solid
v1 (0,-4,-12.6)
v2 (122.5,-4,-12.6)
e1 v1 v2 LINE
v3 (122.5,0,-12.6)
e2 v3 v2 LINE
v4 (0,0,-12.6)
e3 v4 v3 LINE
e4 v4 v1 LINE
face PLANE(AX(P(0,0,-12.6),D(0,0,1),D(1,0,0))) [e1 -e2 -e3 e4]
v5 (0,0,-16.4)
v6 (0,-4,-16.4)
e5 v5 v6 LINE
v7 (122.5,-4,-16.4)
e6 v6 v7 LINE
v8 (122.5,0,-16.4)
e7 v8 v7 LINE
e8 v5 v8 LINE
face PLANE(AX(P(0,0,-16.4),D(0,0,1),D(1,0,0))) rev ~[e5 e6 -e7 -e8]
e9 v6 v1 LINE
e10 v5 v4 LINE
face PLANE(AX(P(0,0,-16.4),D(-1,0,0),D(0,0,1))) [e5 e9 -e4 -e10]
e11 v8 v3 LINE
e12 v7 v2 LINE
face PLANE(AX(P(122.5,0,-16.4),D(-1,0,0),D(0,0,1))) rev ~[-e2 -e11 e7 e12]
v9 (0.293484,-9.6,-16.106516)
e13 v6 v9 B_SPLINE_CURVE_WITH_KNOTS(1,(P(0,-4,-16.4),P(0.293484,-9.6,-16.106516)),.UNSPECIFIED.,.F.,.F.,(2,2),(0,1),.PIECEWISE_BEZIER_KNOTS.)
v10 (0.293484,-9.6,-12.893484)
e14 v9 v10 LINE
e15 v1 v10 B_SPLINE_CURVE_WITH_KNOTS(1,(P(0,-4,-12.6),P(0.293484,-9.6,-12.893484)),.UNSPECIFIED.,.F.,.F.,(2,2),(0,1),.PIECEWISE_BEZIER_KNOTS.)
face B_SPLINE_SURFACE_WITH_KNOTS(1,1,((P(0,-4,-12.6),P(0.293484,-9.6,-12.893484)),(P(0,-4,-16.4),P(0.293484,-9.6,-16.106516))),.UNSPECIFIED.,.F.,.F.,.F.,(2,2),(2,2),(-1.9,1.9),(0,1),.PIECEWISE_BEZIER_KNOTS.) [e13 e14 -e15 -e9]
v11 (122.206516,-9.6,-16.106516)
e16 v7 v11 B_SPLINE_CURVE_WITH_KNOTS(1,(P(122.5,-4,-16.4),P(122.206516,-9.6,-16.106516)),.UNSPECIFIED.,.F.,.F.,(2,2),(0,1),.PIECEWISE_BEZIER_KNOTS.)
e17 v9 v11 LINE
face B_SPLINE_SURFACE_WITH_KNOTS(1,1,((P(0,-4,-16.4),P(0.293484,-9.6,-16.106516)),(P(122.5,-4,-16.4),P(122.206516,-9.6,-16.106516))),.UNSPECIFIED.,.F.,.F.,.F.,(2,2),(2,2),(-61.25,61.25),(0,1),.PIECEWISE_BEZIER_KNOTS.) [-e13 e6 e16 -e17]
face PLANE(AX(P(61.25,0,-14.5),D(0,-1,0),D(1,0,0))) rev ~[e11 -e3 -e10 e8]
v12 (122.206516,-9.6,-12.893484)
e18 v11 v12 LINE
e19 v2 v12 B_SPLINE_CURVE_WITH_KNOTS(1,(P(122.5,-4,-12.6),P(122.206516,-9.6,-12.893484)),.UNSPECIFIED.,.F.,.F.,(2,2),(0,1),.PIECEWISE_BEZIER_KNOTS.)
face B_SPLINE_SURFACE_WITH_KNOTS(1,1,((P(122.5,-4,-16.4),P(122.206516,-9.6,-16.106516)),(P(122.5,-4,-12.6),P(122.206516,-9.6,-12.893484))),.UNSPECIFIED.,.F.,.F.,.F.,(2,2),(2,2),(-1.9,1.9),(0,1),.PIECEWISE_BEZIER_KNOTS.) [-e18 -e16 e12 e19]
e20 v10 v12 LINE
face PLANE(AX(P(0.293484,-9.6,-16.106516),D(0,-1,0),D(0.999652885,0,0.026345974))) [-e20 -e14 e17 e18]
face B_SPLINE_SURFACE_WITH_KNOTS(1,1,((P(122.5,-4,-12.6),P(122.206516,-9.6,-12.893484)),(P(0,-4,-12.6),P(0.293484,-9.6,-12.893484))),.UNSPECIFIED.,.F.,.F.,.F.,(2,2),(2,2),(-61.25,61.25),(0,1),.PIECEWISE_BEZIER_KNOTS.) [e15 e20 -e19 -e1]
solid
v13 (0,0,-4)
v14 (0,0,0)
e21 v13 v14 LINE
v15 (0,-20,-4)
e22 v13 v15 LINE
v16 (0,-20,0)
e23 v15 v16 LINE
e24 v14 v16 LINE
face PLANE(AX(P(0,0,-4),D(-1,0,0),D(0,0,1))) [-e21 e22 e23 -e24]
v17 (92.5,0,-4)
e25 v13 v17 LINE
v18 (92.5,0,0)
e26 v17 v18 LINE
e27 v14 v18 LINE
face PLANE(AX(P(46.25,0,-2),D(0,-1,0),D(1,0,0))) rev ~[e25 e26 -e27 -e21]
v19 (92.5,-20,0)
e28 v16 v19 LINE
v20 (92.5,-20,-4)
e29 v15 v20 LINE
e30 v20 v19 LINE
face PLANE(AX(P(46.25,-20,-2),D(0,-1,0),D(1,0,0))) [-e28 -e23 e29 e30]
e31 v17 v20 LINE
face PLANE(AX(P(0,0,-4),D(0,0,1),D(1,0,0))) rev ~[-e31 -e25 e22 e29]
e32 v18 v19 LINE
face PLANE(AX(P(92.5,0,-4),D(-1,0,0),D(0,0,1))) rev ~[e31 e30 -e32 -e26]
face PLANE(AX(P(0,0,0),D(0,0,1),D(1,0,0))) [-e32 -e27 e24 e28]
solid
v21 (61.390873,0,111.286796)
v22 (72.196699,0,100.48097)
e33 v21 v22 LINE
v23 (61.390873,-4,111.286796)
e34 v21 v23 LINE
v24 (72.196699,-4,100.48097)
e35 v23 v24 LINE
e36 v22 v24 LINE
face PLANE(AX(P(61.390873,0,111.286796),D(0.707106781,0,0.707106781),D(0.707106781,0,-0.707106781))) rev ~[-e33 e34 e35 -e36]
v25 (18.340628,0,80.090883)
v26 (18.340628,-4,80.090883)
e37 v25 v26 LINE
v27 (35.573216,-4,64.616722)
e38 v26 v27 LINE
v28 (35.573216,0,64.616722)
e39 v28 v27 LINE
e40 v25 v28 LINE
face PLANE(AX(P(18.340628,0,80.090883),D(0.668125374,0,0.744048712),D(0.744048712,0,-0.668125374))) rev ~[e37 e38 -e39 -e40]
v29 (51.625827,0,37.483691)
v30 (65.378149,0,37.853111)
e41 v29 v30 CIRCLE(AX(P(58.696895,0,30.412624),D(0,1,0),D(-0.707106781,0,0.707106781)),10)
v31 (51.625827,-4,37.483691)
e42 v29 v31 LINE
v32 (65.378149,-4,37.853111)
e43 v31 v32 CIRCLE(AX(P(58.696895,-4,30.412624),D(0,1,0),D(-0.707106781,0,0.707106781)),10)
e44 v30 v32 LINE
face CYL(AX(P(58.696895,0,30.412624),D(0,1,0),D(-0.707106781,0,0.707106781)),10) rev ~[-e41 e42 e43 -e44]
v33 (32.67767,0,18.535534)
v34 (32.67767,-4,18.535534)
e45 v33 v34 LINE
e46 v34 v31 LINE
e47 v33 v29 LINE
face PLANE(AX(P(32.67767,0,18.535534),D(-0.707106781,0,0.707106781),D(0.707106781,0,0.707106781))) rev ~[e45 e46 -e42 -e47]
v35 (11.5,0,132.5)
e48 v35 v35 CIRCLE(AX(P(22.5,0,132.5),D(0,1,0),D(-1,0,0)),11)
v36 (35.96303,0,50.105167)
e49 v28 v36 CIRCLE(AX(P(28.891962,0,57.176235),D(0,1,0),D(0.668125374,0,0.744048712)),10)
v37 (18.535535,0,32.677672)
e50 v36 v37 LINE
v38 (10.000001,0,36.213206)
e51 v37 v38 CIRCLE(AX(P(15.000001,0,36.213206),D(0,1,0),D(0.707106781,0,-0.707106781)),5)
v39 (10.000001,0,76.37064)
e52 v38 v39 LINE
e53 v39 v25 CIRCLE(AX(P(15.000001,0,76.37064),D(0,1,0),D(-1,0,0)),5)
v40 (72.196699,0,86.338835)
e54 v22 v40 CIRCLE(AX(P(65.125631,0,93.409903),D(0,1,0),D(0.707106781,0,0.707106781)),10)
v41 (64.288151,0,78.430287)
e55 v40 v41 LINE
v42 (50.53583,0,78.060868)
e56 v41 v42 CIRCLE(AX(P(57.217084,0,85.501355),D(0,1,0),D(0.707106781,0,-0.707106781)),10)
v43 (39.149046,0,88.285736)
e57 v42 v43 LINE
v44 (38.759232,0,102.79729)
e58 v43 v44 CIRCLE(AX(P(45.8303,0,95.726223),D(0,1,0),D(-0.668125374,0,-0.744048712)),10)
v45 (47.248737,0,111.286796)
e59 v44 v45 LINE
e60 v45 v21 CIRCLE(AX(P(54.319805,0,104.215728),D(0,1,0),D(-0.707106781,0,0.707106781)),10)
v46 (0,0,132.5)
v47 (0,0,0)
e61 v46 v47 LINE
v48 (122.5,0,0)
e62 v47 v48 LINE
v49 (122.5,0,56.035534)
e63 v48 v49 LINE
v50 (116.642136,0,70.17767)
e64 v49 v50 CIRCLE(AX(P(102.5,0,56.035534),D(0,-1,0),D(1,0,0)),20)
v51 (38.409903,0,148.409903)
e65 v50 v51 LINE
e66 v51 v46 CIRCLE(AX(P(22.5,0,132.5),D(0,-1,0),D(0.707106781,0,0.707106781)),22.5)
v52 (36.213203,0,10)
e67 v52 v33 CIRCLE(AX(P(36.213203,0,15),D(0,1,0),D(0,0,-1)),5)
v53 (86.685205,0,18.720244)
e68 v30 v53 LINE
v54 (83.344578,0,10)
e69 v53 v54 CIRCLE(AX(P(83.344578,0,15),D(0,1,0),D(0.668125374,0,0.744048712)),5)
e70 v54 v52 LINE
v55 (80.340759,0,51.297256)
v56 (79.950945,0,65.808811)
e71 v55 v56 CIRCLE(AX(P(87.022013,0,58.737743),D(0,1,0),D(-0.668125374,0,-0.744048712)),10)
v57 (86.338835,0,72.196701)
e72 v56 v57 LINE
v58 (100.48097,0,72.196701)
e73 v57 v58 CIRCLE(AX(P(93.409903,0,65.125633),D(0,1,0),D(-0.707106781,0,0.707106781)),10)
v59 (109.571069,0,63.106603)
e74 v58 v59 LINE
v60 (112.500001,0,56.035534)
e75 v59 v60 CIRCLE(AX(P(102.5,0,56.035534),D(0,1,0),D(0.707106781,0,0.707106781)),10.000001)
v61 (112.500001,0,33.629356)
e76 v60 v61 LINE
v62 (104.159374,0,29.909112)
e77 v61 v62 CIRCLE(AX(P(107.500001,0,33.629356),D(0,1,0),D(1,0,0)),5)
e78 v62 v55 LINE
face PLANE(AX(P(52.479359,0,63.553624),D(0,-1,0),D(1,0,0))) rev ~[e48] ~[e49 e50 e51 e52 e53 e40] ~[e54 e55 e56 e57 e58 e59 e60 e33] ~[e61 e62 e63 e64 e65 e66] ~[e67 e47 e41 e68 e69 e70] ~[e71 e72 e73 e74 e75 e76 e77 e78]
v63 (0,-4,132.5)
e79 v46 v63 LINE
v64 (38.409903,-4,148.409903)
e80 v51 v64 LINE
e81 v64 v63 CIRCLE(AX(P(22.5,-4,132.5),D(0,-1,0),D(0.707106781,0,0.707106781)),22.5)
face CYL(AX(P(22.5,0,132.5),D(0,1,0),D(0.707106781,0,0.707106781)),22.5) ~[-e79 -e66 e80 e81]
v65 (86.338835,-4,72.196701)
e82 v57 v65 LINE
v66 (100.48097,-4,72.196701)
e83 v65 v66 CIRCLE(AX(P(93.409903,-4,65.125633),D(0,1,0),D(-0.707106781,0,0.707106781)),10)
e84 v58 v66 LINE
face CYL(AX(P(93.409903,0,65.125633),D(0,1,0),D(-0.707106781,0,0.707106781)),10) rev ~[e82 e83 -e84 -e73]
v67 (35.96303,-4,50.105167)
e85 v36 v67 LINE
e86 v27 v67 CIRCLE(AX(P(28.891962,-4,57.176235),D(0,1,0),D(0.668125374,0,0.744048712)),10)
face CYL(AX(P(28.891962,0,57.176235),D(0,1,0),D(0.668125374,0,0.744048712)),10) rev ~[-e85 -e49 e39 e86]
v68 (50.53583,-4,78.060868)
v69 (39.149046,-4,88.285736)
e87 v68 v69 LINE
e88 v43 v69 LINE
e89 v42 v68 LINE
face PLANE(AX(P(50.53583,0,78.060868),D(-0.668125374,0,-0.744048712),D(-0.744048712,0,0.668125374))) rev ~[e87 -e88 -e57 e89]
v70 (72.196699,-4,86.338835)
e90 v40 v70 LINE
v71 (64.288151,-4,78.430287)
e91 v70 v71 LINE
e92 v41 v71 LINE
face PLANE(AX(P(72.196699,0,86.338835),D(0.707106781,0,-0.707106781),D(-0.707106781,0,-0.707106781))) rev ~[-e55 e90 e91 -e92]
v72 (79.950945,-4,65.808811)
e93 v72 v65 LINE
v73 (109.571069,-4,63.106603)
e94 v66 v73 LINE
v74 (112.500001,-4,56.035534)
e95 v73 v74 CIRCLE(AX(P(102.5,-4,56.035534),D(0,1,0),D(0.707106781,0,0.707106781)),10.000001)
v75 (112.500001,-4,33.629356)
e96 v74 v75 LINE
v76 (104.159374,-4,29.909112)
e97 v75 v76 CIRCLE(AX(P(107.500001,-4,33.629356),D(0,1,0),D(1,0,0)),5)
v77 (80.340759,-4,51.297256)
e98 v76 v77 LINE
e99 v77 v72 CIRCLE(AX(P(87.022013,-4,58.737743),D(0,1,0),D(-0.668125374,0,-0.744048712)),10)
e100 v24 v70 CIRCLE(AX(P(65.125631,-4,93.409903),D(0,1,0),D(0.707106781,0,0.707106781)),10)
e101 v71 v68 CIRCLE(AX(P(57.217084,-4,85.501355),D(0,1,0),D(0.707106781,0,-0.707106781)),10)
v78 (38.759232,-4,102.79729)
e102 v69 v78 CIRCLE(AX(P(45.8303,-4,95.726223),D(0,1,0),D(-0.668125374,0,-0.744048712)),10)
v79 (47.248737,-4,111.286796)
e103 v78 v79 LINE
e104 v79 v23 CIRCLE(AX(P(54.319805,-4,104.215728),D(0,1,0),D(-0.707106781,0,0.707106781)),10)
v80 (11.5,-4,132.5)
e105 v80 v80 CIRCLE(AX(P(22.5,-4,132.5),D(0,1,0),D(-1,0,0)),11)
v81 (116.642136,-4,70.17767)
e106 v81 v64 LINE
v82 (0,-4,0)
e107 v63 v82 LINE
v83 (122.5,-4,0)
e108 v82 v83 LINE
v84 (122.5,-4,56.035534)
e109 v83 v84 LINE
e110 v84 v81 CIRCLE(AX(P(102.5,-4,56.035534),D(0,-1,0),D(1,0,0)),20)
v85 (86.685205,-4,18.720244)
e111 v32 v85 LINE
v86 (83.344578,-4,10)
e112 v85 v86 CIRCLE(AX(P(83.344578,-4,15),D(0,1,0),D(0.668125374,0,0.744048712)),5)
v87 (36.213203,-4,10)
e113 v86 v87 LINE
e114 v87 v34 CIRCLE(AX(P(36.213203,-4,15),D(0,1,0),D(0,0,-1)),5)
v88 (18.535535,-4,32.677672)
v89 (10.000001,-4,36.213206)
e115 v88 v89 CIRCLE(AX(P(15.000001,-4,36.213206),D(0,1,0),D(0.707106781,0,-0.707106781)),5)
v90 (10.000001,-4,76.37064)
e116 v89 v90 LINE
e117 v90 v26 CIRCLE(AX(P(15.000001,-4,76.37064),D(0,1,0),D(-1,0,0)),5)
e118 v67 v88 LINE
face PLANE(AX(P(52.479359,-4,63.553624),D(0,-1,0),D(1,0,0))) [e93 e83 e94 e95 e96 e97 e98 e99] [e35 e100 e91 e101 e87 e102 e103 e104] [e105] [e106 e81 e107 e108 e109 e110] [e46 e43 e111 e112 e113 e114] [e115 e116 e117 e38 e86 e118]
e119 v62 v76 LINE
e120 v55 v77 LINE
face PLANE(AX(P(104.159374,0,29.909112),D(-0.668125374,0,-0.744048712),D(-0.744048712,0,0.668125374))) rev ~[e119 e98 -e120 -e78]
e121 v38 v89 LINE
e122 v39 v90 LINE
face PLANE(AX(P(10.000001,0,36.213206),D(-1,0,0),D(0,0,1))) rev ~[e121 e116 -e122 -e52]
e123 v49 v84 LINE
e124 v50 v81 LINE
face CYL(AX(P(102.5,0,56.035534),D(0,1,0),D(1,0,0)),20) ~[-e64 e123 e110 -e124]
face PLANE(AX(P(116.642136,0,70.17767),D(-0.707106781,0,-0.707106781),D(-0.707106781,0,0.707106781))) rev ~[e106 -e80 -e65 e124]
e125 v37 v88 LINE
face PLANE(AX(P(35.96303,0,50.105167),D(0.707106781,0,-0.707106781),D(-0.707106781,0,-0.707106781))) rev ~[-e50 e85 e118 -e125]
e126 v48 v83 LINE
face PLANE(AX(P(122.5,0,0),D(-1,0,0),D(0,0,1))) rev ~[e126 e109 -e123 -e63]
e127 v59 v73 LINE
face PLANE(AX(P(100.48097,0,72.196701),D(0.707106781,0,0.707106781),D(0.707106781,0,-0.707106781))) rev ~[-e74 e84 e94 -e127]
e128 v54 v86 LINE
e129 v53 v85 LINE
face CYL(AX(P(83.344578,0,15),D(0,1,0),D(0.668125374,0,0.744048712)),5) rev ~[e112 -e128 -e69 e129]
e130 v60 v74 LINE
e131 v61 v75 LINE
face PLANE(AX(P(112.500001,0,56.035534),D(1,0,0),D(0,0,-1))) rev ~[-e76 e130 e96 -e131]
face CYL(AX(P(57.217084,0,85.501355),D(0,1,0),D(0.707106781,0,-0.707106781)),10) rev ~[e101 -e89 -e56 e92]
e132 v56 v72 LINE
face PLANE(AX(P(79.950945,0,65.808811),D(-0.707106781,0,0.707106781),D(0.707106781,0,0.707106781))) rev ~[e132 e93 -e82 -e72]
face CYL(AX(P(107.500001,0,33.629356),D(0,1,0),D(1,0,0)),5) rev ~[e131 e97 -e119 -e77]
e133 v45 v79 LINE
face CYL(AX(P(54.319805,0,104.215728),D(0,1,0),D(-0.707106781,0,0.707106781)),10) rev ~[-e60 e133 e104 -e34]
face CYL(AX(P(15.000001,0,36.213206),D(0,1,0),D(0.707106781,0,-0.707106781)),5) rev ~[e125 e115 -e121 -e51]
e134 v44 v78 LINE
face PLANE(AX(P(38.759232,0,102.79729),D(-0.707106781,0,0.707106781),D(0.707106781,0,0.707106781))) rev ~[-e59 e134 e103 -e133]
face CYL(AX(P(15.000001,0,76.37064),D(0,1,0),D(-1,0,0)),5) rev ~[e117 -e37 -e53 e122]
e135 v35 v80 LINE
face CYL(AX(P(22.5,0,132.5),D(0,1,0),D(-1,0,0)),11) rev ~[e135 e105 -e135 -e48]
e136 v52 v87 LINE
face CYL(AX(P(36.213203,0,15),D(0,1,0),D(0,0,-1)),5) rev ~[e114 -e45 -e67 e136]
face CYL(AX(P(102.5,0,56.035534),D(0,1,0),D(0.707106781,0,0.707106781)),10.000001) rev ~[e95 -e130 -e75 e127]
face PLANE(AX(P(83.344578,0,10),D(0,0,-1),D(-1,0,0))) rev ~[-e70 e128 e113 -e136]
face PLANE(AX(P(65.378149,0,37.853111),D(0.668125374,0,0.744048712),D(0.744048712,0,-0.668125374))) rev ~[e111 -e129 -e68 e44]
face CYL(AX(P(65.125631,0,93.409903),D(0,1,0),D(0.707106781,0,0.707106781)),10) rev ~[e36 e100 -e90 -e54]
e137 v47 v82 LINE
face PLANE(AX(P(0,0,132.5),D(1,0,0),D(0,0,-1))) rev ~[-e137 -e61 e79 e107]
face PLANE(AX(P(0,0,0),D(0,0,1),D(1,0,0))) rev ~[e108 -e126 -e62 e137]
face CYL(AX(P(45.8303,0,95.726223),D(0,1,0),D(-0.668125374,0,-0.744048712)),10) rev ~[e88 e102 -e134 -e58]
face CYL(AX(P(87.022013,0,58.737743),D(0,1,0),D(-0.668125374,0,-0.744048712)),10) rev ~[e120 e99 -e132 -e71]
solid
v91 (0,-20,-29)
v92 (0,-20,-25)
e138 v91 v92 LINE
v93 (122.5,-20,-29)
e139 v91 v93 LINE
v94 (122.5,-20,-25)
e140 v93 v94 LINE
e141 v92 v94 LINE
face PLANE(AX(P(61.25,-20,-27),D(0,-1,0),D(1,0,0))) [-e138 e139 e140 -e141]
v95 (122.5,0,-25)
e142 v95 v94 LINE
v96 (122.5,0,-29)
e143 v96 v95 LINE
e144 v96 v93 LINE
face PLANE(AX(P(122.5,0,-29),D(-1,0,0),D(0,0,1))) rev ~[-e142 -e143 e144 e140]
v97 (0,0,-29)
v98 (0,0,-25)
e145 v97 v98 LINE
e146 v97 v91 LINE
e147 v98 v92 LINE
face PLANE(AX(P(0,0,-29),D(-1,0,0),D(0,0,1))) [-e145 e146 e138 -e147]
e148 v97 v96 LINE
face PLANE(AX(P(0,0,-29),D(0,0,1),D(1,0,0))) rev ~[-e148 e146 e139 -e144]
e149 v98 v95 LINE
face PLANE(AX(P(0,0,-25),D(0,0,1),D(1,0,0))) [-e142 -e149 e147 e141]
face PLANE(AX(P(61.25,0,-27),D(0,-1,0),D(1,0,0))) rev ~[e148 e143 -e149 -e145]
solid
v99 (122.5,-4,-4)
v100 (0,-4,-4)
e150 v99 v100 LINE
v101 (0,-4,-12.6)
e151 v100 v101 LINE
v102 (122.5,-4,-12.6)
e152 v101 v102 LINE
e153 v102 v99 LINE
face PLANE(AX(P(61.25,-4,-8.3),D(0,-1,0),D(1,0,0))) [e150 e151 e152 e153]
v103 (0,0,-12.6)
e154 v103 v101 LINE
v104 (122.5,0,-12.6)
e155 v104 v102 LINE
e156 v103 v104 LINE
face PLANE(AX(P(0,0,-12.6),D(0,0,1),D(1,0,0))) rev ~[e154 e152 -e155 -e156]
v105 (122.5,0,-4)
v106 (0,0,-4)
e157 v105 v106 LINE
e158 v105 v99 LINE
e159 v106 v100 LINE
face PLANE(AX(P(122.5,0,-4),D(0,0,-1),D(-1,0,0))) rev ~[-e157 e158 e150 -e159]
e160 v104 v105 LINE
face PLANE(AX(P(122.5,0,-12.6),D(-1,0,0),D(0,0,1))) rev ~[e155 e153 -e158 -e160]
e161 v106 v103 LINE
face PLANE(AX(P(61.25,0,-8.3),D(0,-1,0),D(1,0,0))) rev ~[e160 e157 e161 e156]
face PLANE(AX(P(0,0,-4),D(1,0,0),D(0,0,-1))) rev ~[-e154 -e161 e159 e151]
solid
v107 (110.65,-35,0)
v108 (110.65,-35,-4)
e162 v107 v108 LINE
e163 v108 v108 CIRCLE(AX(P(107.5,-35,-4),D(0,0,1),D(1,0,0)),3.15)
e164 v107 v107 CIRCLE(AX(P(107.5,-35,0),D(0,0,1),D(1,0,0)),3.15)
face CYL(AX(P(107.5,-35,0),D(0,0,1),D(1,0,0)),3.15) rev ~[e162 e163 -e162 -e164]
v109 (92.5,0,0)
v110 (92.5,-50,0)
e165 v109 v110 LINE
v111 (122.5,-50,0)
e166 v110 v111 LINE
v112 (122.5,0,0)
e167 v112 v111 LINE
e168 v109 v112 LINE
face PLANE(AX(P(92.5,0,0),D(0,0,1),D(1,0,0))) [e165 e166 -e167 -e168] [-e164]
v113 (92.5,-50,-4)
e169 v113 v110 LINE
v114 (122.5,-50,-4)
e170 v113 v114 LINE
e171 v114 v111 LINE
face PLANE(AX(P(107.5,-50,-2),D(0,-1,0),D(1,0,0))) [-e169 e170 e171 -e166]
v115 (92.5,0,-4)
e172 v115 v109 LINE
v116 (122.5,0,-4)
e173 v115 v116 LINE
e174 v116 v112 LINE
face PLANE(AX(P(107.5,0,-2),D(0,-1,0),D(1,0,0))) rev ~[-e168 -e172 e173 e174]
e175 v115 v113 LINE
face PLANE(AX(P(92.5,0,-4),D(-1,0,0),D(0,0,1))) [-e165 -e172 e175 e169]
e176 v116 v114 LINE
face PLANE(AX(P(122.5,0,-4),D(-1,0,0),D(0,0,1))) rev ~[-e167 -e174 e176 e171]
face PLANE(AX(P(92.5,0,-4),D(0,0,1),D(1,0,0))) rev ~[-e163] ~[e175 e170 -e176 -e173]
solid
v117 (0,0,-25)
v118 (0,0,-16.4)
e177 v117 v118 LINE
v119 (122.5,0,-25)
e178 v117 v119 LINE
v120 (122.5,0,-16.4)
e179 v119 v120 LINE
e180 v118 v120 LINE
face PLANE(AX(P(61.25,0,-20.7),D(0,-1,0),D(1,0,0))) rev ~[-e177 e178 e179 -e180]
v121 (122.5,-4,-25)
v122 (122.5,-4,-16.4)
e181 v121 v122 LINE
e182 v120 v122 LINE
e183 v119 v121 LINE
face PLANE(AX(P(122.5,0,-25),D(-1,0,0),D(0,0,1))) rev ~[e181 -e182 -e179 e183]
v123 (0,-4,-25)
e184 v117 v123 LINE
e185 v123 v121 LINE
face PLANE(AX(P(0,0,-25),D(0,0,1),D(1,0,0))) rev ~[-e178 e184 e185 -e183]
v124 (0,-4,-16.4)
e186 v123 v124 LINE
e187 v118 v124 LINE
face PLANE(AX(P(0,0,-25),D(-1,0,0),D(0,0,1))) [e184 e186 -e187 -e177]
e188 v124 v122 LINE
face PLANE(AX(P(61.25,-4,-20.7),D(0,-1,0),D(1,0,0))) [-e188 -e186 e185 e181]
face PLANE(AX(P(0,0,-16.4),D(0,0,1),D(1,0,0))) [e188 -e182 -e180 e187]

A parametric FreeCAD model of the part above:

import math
import FreeCAD as App
import Part
import Sketcher

doc = App.newDocument("Part")
body = doc.addObject("PartDesign::Body", "Body")

sketch1 = doc.addObject("Sketcher::SketchObject", "Sketch")
body.addObject(sketch1)
sketch1.AttachmentSupport = (doc.XZ_Plane, [""])
sketch1.MapMode = "FlatFace"
sketch1.addGeometry(Part.LineSegment(App.Vector(0, 0, 0), App.Vector(122, 0, 0)), False)
sketch1.addGeometry(Part.LineSegment(App.Vector(122, 0, 0), App.Vector(122, 56, 0)), False)
sketch1.addGeometry(Part.ArcOfCircle(Part.Circle(App.Vector(102, 56, 0), App.Vector(0, 0, 1), 20), math.radians(0), math.radians(45)), False)
sketch1.addGeometry(Part.LineSegment(App.Vector(117, 70, 0), App.Vector(38, 148, 0)), False)
sketch1.addGeometry(Part.ArcOfCircle(Part.Circle(App.Vector(22, 132, 0), App.Vector(0, 0, 1), 22), math.radians(45), math.radians(180)), False)
sketch1.addGeometry(Part.LineSegment(App.Vector(0, 132, 0), App.Vector(0, 0, 0)), False)
sketch1.addGeometry(Part.LineSegment(App.Vector(33, 19, 0), App.Vector(52, 37, 0)), False)
sketch1.addGeometry(Part.ArcOfCircle(Part.Circle(App.Vector(59, 30, 0), App.Vector(0, 0, 1), 10), math.radians(48), math.radians(135)), False)
sketch1.addGeometry(Part.LineSegment(App.Vector(65, 38, 0), App.Vector(87, 19, 0)), False)
sketch1.addGeometry(Part.ArcOfCircle(Part.Circle(App.Vector(83, 15, 0), App.Vector(0, 0, 1), 5), math.radians(-90), math.radians(48)), False)
sketch1.addGeometry(Part.LineSegment(App.Vector(83, 10, 0), App.Vector(36, 10, 0)), False)
sketch1.addGeometry(Part.ArcOfCircle(Part.Circle(App.Vector(36, 15, 0), App.Vector(0, 0, 1), 5), math.radians(135), math.radians(270)), False)
sketch1.addGeometry(Part.LineSegment(App.Vector(18, 80, 0), App.Vector(36, 65, 0)), False)
sketch1.addGeometry(Part.ArcOfCircle(Part.Circle(App.Vector(29, 57, 0), App.Vector(0, 0, 1), 10), math.radians(-45), math.radians(48)), False)
sketch1.addGeometry(Part.LineSegment(App.Vector(36, 50, 0), App.Vector(19, 33, 0)), False)
sketch1.addGeometry(Part.ArcOfCircle(Part.Circle(App.Vector(15, 36, 0), App.Vector(0, 0, 1), 5), math.radians(180), math.radians(315)), False)
sketch1.addGeometry(Part.LineSegment(App.Vector(10, 36, 0), App.Vector(10, 76, 0)), False)
sketch1.addGeometry(Part.ArcOfCircle(Part.Circle(App.Vector(15, 76, 0), App.Vector(0, 0, 1), 5), math.radians(48), math.radians(180)), False)
sketch1.addGeometry(Part.ArcOfCircle(Part.Circle(App.Vector(102, 56, 0), App.Vector(0, 0, 1), 10), math.radians(0), math.radians(45)), False)
sketch1.addGeometry(Part.LineSegment(App.Vector(113, 56, 0), App.Vector(113, 34, 0)), False)
sketch1.addGeometry(Part.ArcOfCircle(Part.Circle(App.Vector(108, 34, 0), App.Vector(0, 0, 1), 5), math.radians(-132), math.radians(0)), False)
sketch1.addGeometry(Part.LineSegment(App.Vector(104, 30, 0), App.Vector(80, 51, 0)), False)
sketch1.addGeometry(Part.ArcOfCircle(Part.Circle(App.Vector(87, 59, 0), App.Vector(0, 0, 1), 10), math.radians(135), math.radians(228)), False)
sketch1.addGeometry(Part.LineSegment(App.Vector(80, 66, 0), App.Vector(86, 72, 0)), False)
sketch1.addGeometry(Part.ArcOfCircle(Part.Circle(App.Vector(93, 65, 0), App.Vector(0, 0, 1), 10), math.radians(45), math.radians(135)), False)
sketch1.addGeometry(Part.LineSegment(App.Vector(100, 72, 0), App.Vector(110, 63, 0)), False)
sketch1.addGeometry(Part.ArcOfCircle(Part.Circle(App.Vector(65, 93, 0), App.Vector(0, 0, 1), 10), math.radians(-45), math.radians(45)), False)
sketch1.addGeometry(Part.LineSegment(App.Vector(72, 86, 0), App.Vector(64, 78, 0)), False)
sketch1.addGeometry(Part.ArcOfCircle(Part.Circle(App.Vector(57, 86, 0), App.Vector(0, 0, 1), 10), math.radians(-132), math.radians(-45)), False)
sketch1.addGeometry(Part.LineSegment(App.Vector(51, 78, 0), App.Vector(39, 88, 0)), False)
sketch1.addGeometry(Part.ArcOfCircle(Part.Circle(App.Vector(46, 96, 0), App.Vector(0, 0, 1), 10), math.radians(135), math.radians(228)), False)
sketch1.addGeometry(Part.LineSegment(App.Vector(39, 103, 0), App.Vector(47, 111, 0)), False)
sketch1.addGeometry(Part.ArcOfCircle(Part.Circle(App.Vector(54, 104, 0), App.Vector(0, 0, 1), 10), math.radians(45), math.radians(135)), False)
sketch1.addGeometry(Part.LineSegment(App.Vector(61, 111, 0), App.Vector(72, 100, 0)), False)
sketch1.addGeometry(Part.Circle(App.Vector(22, 132, 0), App.Vector(0, 0, 1), 11), False)
sketch1.addConstraint(Sketcher.Constraint("Coincident", 0, 2, 1, 1))
sketch1.addConstraint(Sketcher.Constraint("Tangent", 1, 2, 2, 1))
sketch1.addConstraint(Sketcher.Constraint("Tangent", 2, 2, 3, 1))
sketch1.addConstraint(Sketcher.Constraint("Tangent", 3, 2, 4, 1))
sketch1.addConstraint(Sketcher.Constraint("Tangent", 4, 2, 5, 1))
sketch1.addConstraint(Sketcher.Constraint("Coincident", 5, 2, 0, 1))
sketch1.addConstraint(Sketcher.Constraint("Tangent", 6, 2, 7, 2))
sketch1.addConstraint(Sketcher.Constraint("Tangent", 7, 1, 8, 1))
sketch1.addConstraint(Sketcher.Constraint("Tangent", 8, 2, 9, 2))
sketch1.addConstraint(Sketcher.Constraint("Tangent", 9, 1, 10, 1))
sketch1.addConstraint(Sketcher.Constraint("Tangent", 10, 2, 11, 2))
sketch1.addConstraint(Sketcher.Constraint("Tangent", 11, 1, 6, 1))
sketch1.addConstraint(Sketcher.Constraint("Tangent", 12, 2, 13, 2))
sketch1.addConstraint(Sketcher.Constraint("Tangent", 13, 1, 14, 1))
sketch1.addConstraint(Sketcher.Constraint("Tangent", 14, 2, 15, 2))
sketch1.addConstraint(Sketcher.Constraint("Tangent", 15, 1, 16, 1))
sketch1.addConstraint(Sketcher.Constraint("Tangent", 16, 2, 17, 2))
sketch1.addConstraint(Sketcher.Constraint("Tangent", 17, 1, 12, 1))
sketch1.addConstraint(Sketcher.Constraint("Tangent", 18, 1, 19, 1))
sketch1.addConstraint(Sketcher.Constraint("Tangent", 19, 2, 20, 2))
sketch1.addConstraint(Sketcher.Constraint("Tangent", 20, 1, 21, 1))
sketch1.addConstraint(Sketcher.Constraint("Tangent", 21, 2, 22, 2))
sketch1.addConstraint(Sketcher.Constraint("Tangent", 22, 1, 23, 1))
sketch1.addConstraint(Sketcher.Constraint("Tangent", 23, 2, 24, 2))
sketch1.addConstraint(Sketcher.Constraint("Tangent", 24, 1, 25, 1))
sketch1.addConstraint(Sketcher.Constraint("Tangent", 25, 2, 18, 2))
sketch1.addConstraint(Sketcher.Constraint("Tangent", 26, 1, 27, 1))
sketch1.addConstraint(Sketcher.Constraint("Tangent", 27, 2, 28, 2))
sketch1.addConstraint(Sketcher.Constraint("Tangent", 28, 1, 29, 1))
sketch1.addConstraint(Sketcher.Constraint("Tangent", 29, 2, 30, 2))
sketch1.addConstraint(Sketcher.Constraint("Tangent", 30, 1, 31, 1))
sketch1.addConstraint(Sketcher.Constraint("Tangent", 31, 2, 32, 2))
sketch1.addConstraint(Sketcher.Constraint("Tangent", 32, 1, 33, 1))
sketch1.addConstraint(Sketcher.Constraint("Tangent", 33, 2, 26, 2))
sketch1.addConstraint(Sketcher.Constraint("Horizontal", 0))
sketch1.addConstraint(Sketcher.Constraint("Vertical", 1))
sketch1.addConstraint(Sketcher.Constraint("Vertical", 5))
sketch1.addConstraint(Sketcher.Constraint("Horizontal", 10))
sketch1.addConstraint(Sketcher.Constraint("Vertical", 16))
sketch1.addConstraint(Sketcher.Constraint("Vertical", 19))
sketch1.addConstraint(Sketcher.Constraint("Coincident", 5, 2, -1, 1))
sketch1.addConstraint(Sketcher.Constraint("Coincident", 18, 3, 2, 3))
sketch1.addConstraint(Sketcher.Constraint("Coincident", 34, 3, 4, 3))
sketch1.addConstraint(Sketcher.Constraint("Equal", 9, 11))
sketch1.addConstraint(Sketcher.Constraint("Equal", 7, 13))
sketch1.addConstraint(Sketcher.Constraint("Equal", 11, 15))
sketch1.addConstraint(Sketcher.Constraint("Equal", 15, 17))
sketch1.addConstraint(Sketcher.Constraint("Equal", 13, 18))
sketch1.addConstraint(Sketcher.Constraint("Equal", 17, 20))
sketch1.addConstraint(Sketcher.Constraint("Equal", 18, 22))
sketch1.addConstraint(Sketcher.Constraint("Equal", 22, 24))
sketch1.addConstraint(Sketcher.Constraint("Equal", 24, 26))
sketch1.addConstraint(Sketcher.Constraint("Equal", 26, 28))
sketch1.addConstraint(Sketcher.Constraint("Equal", 28, 30))
sketch1.addConstraint(Sketcher.Constraint("Equal", 30, 32))
sketch1.addConstraint(Sketcher.Constraint("Perpendicular", 3, 6))
sketch1.addConstraint(Sketcher.Constraint("Parallel", 8, 12))
sketch1.addConstraint(Sketcher.Constraint("Parallel", 6, 14))
sketch1.addConstraint(Sketcher.Constraint("Parallel", 12, 21))
sketch1.addConstraint(Sketcher.Constraint("Parallel", 14, 23))
sketch1.addConstraint(Sketcher.Constraint("Perpendicular", 23, 25))
sketch1.addConstraint(Sketcher.Constraint("Perpendicular", 25, 27))
sketch1.addConstraint(Sketcher.Constraint("Parallel", 21, 29))
sketch1.addConstraint(Sketcher.Constraint("Parallel", 27, 31))
sketch1.addConstraint(Sketcher.Constraint("Perpendicular", 31, 33))
sketch1.addConstraint(Sketcher.Constraint("Horizontal", 23, 2, 24, 1))
sketch1.addConstraint(Sketcher.Constraint("Diameter", 34, 22.0))
sketch1.addConstraint(Sketcher.Constraint("Radius", 2, 20.0))
sketch1.addConstraint(Sketcher.Constraint("Radius", 7, 10.0))
sketch1.addConstraint(Sketcher.Constraint("Radius", 9, 5.0))
sketch1.addConstraint(Sketcher.Constraint("Radius", 4, 22.5))
sketch1.addConstraint(Sketcher.Constraint("DistanceX", 0, 1, 0, 2, 122.5))
sketch1.addConstraint(Sketcher.Constraint("DistanceY", 5, 2, 5, 1, 132.5))
sketch1.addConstraint(Sketcher.Constraint("DistanceY", -1, 1, 9, 3, 15.0))
sketch1.addConstraint(Sketcher.Constraint("DistanceX", -1, 1, 15, 3, 15.000001))
sketch1.addConstraint(Sketcher.Constraint("DistanceY", 26, 3, 3, 2, 55.0))
sketch1.addConstraint(Sketcher.Constraint("Distance", 14, 24.6462))
sketch1.addConstraint(Sketcher.Constraint("DistanceY", 19, 2, 19, 1, 22.406178))
sketch1.addConstraint(Sketcher.Constraint("DistanceX", -1, 1, 30, 3, 45.8303))
sketch1.addConstraint(Sketcher.Constraint("DistanceY", -1, 1, 23, 2, 72.196701))
sketch1.addConstraint(Sketcher.Constraint("DistanceX", -1, 1, 26, 1, 72.196699))
sketch1.addConstraint(Sketcher.Constraint("DistanceY", 2, 3, 13, 3, 1.140701))
sketch1.addConstraint(Sketcher.Constraint("DistanceY", 12, 2, 30, 3, 31.1095))
sketch1.addConstraint(Sketcher.Constraint("DistanceX", 28, 1, 26, 3, 14.589801))
sketch1.addConstraint(Sketcher.Constraint("Distance", 6, 26.796741))
sketch1.addConstraint(Sketcher.Constraint("DistanceX", -1, 1, 9, 3, 83.344578))
pad1 = doc.addObject("PartDesign::Pad", "Pad")
body.addObject(pad1)
pad1.Profile = sketch1
pad1.Length = 4
body2 = doc.addObject("PartDesign::Body", "Body001")

sketch2 = doc.addObject("Sketcher::SketchObject", "Sketch001")
body2.addObject(sketch2)
sketch2.AttachmentSupport = (doc.getObject("XZ_Plane001"), [""])
sketch2.MapMode = "FlatFace"
sketch2.addGeometry(Part.LineSegment(App.Vector(0, -4, 0), App.Vector(0, -13, 0)), False)
sketch2.addGeometry(Part.LineSegment(App.Vector(0, -13, 0), App.Vector(122, -13, 0)), False)
sketch2.addGeometry(Part.LineSegment(App.Vector(122, -13, 0), App.Vector(122, -4, 0)), False)
sketch2.addGeometry(Part.LineSegment(App.Vector(122, -4, 0), App.Vector(0, -4, 0)), False)
sketch2.addConstraint(Sketcher.Constraint("Coincident", 0, 2, 1, 1))
sketch2.addConstraint(Sketcher.Constraint("Coincident", 1, 2, 2, 1))
sketch2.addConstraint(Sketcher.Constraint("Coincident", 2, 2, 3, 1))
sketch2.addConstraint(Sketcher.Constraint("Coincident", 3, 2, 0, 1))
sketch2.addConstraint(Sketcher.Constraint("Vertical", 0))
sketch2.addConstraint(Sketcher.Constraint("Horizontal", 1))
sketch2.addConstraint(Sketcher.Constraint("Vertical", 2))
sketch2.addConstraint(Sketcher.Constraint("Horizontal", 3))
sketch2.addConstraint(Sketcher.Constraint("PointOnObject", 0, 2, -2))
sketch2.addConstraint(Sketcher.Constraint("DistanceX", 1, 1, 1, 2, 122.5))
sketch2.addConstraint(Sketcher.Constraint("DistanceY", 0, 2, 0, 1, 8.6))
sketch2.addConstraint(Sketcher.Constraint("DistanceY", 2, 2, -1, 1, 4.0))
pad2 = doc.addObject("PartDesign::Pad", "Pad001")
body2.addObject(pad2)
pad2.Profile = sketch2
pad2.Length = 4
body3 = doc.addObject("PartDesign::Body", "Body002")

sketch3 = doc.addObject("Sketcher::SketchObject", "Sketch002")
body3.addObject(sketch3)
sketch3.AttachmentSupport = (doc.getObject("XZ_Plane002"), [""])
sketch3.MapMode = "FlatFace"
sketch3.addGeometry(Part.LineSegment(App.Vector(0, -16, 0), App.Vector(0, -25, 0)), False)
sketch3.addGeometry(Part.LineSegment(App.Vector(0, -25, 0), App.Vector(122, -25, 0)), False)
sketch3.addGeometry(Part.LineSegment(App.Vector(122, -25, 0), App.Vector(122, -16, 0)), False)
sketch3.addGeometry(Part.LineSegment(App.Vector(122, -16, 0), App.Vector(0, -16, 0)), False)
sketch3.addConstraint(Sketcher.Constraint("Coincident", 0, 2, 1, 1))
sketch3.addConstraint(Sketcher.Constraint("Coincident", 1, 2, 2, 1))
sketch3.addConstraint(Sketcher.Constraint("Coincident", 2, 2, 3, 1))
sketch3.addConstraint(Sketcher.Constraint("Coincident", 3, 2, 0, 1))
sketch3.addConstraint(Sketcher.Constraint("Vertical", 0))
sketch3.addConstraint(Sketcher.Constraint("Horizontal", 1))
sketch3.addConstraint(Sketcher.Constraint("Vertical", 2))
sketch3.addConstraint(Sketcher.Constraint("Horizontal", 3))
sketch3.addConstraint(Sketcher.Constraint("PointOnObject", 0, 2, -2))
sketch3.addConstraint(Sketcher.Constraint("DistanceX", 1, 1, 1, 2, 122.5))
sketch3.addConstraint(Sketcher.Constraint("DistanceY", 0, 2, 0, 1, 8.6))
sketch3.addConstraint(Sketcher.Constraint("DistanceY", 0, 2, -1, 1, 25.0))
pad3 = doc.addObject("PartDesign::Pad", "Pad002")
body3.addObject(pad3)
pad3.Profile = sketch3
pad3.Length = 4
body4 = doc.addObject("PartDesign::Body", "Body003")

sketch4 = doc.addObject("Sketcher::SketchObject", "Sketch003")
body4.addObject(sketch4)
sketch4.AttachmentSupport = (doc.getObject("XZ_Plane003"), [""])
sketch4.MapMode = "FlatFace"
sketch4.addGeometry(Part.LineSegment(App.Vector(0, 0, 0), App.Vector(0, -4, 0)), False)
sketch4.addGeometry(Part.LineSegment(App.Vector(0, -4, 0), App.Vector(92.5, -4, 0)), False)
sketch4.addGeometry(Part.LineSegment(App.Vector(92.5, -4, 0), App.Vector(92.5, 0, 0)), False)
sketch4.addGeometry(Part.LineSegment(App.Vector(92.5, 0, 0), App.Vector(0, 0, 0)), False)
sketch4.addConstraint(Sketcher.Constraint("Coincident", 0, 2, 1, 1))
sketch4.addConstraint(Sketcher.Constraint("Coincident", 1, 2, 2, 1))
sketch4.addConstraint(Sketcher.Constraint("Coincident", 2, 2, 3, 1))
sketch4.addConstraint(Sketcher.Constraint("Coincident", 3, 2, 0, 1))
sketch4.addConstraint(Sketcher.Constraint("Vertical", 0))
sketch4.addConstraint(Sketcher.Constraint("Horizontal", 1))
sketch4.addConstraint(Sketcher.Constraint("Vertical", 2))
sketch4.addConstraint(Sketcher.Constraint("Horizontal", 3))
sketch4.addConstraint(Sketcher.Constraint("Coincident", 3, 2, -1, 1))
sketch4.addConstraint(Sketcher.Constraint("DistanceY", 0, 2, 0, 1, 4.0))
sketch4.addConstraint(Sketcher.Constraint("DistanceX", 1, 1, 1, 2, 92.5))
pad4 = doc.addObject("PartDesign::Pad", "Pad003")
body4.addObject(pad4)
pad4.Profile = sketch4
pad4.Length = 20
body5 = doc.addObject("PartDesign::Body", "Body004")

sketch5 = doc.addObject("Sketcher::SketchObject", "Sketch004")
body5.addObject(sketch5)
sketch5.AttachmentSupport = (doc.getObject("XZ_Plane004"), [""])
sketch5.MapMode = "FlatFace"
sketch5.addGeometry(Part.LineSegment(App.Vector(0, -25, 0), App.Vector(0, -29, 0)), False)
sketch5.addGeometry(Part.LineSegment(App.Vector(0, -29, 0), App.Vector(122.5, -29, 0)), False)
sketch5.addGeometry(Part.LineSegment(App.Vector(122.5, -29, 0), App.Vector(122.5, -25, 0)), False)
sketch5.addGeometry(Part.LineSegment(App.Vector(122.5, -25, 0), App.Vector(0, -25, 0)), False)
sketch5.addConstraint(Sketcher.Constraint("Coincident", 0, 2, 1, 1))
sketch5.addConstraint(Sketcher.Constraint("Coincident", 1, 2, 2, 1))
sketch5.addConstraint(Sketcher.Constraint("Coincident", 2, 2, 3, 1))
sketch5.addConstraint(Sketcher.Constraint("Coincident", 3, 2, 0, 1))
sketch5.addConstraint(Sketcher.Constraint("Vertical", 0))
sketch5.addConstraint(Sketcher.Constraint("Horizontal", 1))
sketch5.addConstraint(Sketcher.Constraint("Vertical", 2))
sketch5.addConstraint(Sketcher.Constraint("Horizontal", 3))
sketch5.addConstraint(Sketcher.Constraint("PointOnObject", 0, 2, -2))
sketch5.addConstraint(Sketcher.Constraint("DistanceY", 0, 2, 0, 1, 4.0))
sketch5.addConstraint(Sketcher.Constraint("DistanceX", 1, 1, 1, 2, 122.5))
sketch5.addConstraint(Sketcher.Constraint("DistanceY", 0, 2, -1, 1, 29.0))
pad5 = doc.addObject("PartDesign::Pad", "Pad004")
body5.addObject(pad5)
pad5.Profile = sketch5
pad5.Length = 20
body6 = doc.addObject("PartDesign::Body", "Body005")

sketch6 = doc.addObject("Sketcher::SketchObject", "Sketch005")
body6.addObject(sketch6)
sketch6.AttachmentSupport = (doc.getObject("XZ_Plane005"), [""])
sketch6.MapMode = "FlatFace"
sketch6.addGeometry(Part.LineSegment(App.Vector(92.5, 0, 0), App.Vector(92.5, -4, 0)), False)
sketch6.addGeometry(Part.LineSegment(App.Vector(92.5, -4, 0), App.Vector(122.5, -4, 0)), False)
sketch6.addGeometry(Part.LineSegment(App.Vector(122.5, -4, 0), App.Vector(122.5, 0, 0)), False)
sketch6.addGeometry(Part.LineSegment(App.Vector(122.5, 0, 0), App.Vector(92.5, 0, 0)), False)
sketch6.addConstraint(Sketcher.Constraint("Coincident", 0, 2, 1, 1))
sketch6.addConstraint(Sketcher.Constraint("Coincident", 1, 2, 2, 1))
sketch6.addConstraint(Sketcher.Constraint("Coincident", 2, 2, 3, 1))
sketch6.addConstraint(Sketcher.Constraint("Coincident", 3, 2, 0, 1))
sketch6.addConstraint(Sketcher.Constraint("Vertical", 0))
sketch6.addConstraint(Sketcher.Constraint("Horizontal", 1))
sketch6.addConstraint(Sketcher.Constraint("Vertical", 2))
sketch6.addConstraint(Sketcher.Constraint("Horizontal", 3))
sketch6.addConstraint(Sketcher.Constraint("PointOnObject", 2, 2, -1))
sketch6.addConstraint(Sketcher.Constraint("DistanceX", 1, 1, 1, 2, 30.0))
sketch6.addConstraint(Sketcher.Constraint("DistanceY", 0, 2, 0, 1, 4.0))
sketch6.addConstraint(Sketcher.Constraint("DistanceX", -1, 1, 0, 2, 92.5))
pad6 = doc.addObject("PartDesign::Pad", "Pad005")
body6.addObject(pad6)
pad6.Profile = sketch6
pad6.Length = 50

sketch7 = doc.addObject("Sketcher::SketchObject", "Sketch006")
body6.addObject(sketch7)
sketch7.AttachmentSupport = (doc.getObject("XY_Plane005"), [""])
sketch7.MapMode = "FlatFace"
sketch7.addGeometry(Part.Circle(App.Vector(107.5, -35, 0), App.Vector(0, 0, 1), 3.1), False)
sketch7.addConstraint(Sketcher.Constraint("Diameter", 0, 6.3))
sketch7.addConstraint(Sketcher.Constraint("DistanceY", 0, 3, -1, 1, 35.0))
sketch7.addConstraint(Sketcher.Constraint("DistanceX", -1, 1, 0, 3, 107.5))
pocket1 = doc.addObject("PartDesign::Pocket", "Pocket")
body6.addObject(pocket1)
pocket1.Profile = sketch7
pocket1.Length = 40
body7 = doc.addObject("PartDesign::Body", "Body006")

sketch8 = doc.addObject("Sketcher::SketchObject", "Sketch007")
body7.addObject(sketch8)
sketch8.AttachmentSupport = (doc.getObject("XZ_Plane006"), [""])
sketch8.MapMode = "FlatFace"
sketch8.addGeometry(Part.LineSegment(App.Vector(0, -12.6, 0), App.Vector(0, -16.4, 0)), False)
sketch8.addGeometry(Part.LineSegment(App.Vector(0, -16.4, 0), App.Vector(122.5, -16.4, 0)), False)
sketch8.addGeometry(Part.LineSegment(App.Vector(122.5, -16.4, 0), App.Vector(122.5, -12.6, 0)), False)
sketch8.addGeometry(Part.LineSegment(App.Vector(122.5, -12.6, 0), App.Vector(0, -12.6, 0)), False)
sketch8.addConstraint(Sketcher.Constraint("Coincident", 0, 2, 1, 1))
sketch8.addConstraint(Sketcher.Constraint("Coincident", 1, 2, 2, 1))
sketch8.addConstraint(Sketcher.Constraint("Coincident", 2, 2, 3, 1))
sketch8.addConstraint(Sketcher.Constraint("Coincident", 3, 2, 0, 1))
sketch8.addConstraint(Sketcher.Constraint("Vertical", 0))
sketch8.addConstraint(Sketcher.Constraint("Horizontal", 1))
sketch8.addConstraint(Sketcher.Constraint("Vertical", 2))
sketch8.addConstraint(Sketcher.Constraint("Horizontal", 3))
sketch8.addConstraint(Sketcher.Constraint("PointOnObject", 0, 2, -2))
sketch8.addConstraint(Sketcher.Constraint("DistanceX", 1, 1, 1, 2, 122.5))
sketch8.addConstraint(Sketcher.Constraint("DistanceY", 0, 2, 0, 1, 3.8))
sketch8.addConstraint(Sketcher.Constraint("DistanceY", 0, 2, -1, 1, 16.4))
pad7 = doc.addObject("PartDesign::Pad", "Pad006")
body7.addObject(pad7)
pad7.Profile = sketch8
pad7.Length = 4

sketch9 = doc.addObject("Sketcher::SketchObject", "Sketch008")
body7.addObject(sketch9)
sketch9.AttachmentSupport = (doc.getObject("XZ_Plane006"), [""])
sketch9.MapMode = "FlatFace"
sketch9.AttachmentOffset = App.Placement(App.Vector(0, 0, 4), App.Rotation())
sketch9.addGeometry(Part.LineSegment(App.Vector(0, -12.6, 0), App.Vector(0, -16.4, 0)), False)
sketch9.addGeometry(Part.LineSegment(App.Vector(0, -16.4, 0), App.Vector(122.5, -16.4, 0)), False)
sketch9.addGeometry(Part.LineSegment(App.Vector(122.5, -16.4, 0), App.Vector(122.5, -12.6, 0)), False)
sketch9.addGeometry(Part.LineSegment(App.Vector(122.5, -12.6, 0), App.Vector(0, -12.6, 0)), False)
sketch9.addConstraint(Sketcher.Constraint("Coincident", 0, 2, 1, 1))
sketch9.addConstraint(Sketcher.Constraint("Coincident", 1, 2, 2, 1))
sketch9.addConstraint(Sketcher.Constraint("Coincident", 2, 2, 3, 1))
sketch9.addConstraint(Sketcher.Constraint("Coincident", 3, 2, 0, 1))
sketch9.addConstraint(Sketcher.Constraint("Vertical", 0))
sketch9.addConstraint(Sketcher.Constraint("Horizontal", 1))
sketch9.addConstraint(Sketcher.Constraint("Vertical", 2))
sketch9.addConstraint(Sketcher.Constraint("Horizontal", 3))
sketch9.addConstraint(Sketcher.Constraint("PointOnObject", 0, 2, -2))
sketch9.addConstraint(Sketcher.Constraint("DistanceX", 1, 1, 1, 2, 122.5))
sketch9.addConstraint(Sketcher.Constraint("DistanceY", 0, 2, 0, 1, 3.8))
sketch9.addConstraint(Sketcher.Constraint("DistanceY", 0, 2, -1, 1, 16.4))
pad8 = doc.addObject("PartDesign::Pad", "Pad007")
body7.addObject(pad8)
pad8.Profile = sketch9
pad8.Length = 5.6
pad8.TaperAngle = -3

doc.recompute()
